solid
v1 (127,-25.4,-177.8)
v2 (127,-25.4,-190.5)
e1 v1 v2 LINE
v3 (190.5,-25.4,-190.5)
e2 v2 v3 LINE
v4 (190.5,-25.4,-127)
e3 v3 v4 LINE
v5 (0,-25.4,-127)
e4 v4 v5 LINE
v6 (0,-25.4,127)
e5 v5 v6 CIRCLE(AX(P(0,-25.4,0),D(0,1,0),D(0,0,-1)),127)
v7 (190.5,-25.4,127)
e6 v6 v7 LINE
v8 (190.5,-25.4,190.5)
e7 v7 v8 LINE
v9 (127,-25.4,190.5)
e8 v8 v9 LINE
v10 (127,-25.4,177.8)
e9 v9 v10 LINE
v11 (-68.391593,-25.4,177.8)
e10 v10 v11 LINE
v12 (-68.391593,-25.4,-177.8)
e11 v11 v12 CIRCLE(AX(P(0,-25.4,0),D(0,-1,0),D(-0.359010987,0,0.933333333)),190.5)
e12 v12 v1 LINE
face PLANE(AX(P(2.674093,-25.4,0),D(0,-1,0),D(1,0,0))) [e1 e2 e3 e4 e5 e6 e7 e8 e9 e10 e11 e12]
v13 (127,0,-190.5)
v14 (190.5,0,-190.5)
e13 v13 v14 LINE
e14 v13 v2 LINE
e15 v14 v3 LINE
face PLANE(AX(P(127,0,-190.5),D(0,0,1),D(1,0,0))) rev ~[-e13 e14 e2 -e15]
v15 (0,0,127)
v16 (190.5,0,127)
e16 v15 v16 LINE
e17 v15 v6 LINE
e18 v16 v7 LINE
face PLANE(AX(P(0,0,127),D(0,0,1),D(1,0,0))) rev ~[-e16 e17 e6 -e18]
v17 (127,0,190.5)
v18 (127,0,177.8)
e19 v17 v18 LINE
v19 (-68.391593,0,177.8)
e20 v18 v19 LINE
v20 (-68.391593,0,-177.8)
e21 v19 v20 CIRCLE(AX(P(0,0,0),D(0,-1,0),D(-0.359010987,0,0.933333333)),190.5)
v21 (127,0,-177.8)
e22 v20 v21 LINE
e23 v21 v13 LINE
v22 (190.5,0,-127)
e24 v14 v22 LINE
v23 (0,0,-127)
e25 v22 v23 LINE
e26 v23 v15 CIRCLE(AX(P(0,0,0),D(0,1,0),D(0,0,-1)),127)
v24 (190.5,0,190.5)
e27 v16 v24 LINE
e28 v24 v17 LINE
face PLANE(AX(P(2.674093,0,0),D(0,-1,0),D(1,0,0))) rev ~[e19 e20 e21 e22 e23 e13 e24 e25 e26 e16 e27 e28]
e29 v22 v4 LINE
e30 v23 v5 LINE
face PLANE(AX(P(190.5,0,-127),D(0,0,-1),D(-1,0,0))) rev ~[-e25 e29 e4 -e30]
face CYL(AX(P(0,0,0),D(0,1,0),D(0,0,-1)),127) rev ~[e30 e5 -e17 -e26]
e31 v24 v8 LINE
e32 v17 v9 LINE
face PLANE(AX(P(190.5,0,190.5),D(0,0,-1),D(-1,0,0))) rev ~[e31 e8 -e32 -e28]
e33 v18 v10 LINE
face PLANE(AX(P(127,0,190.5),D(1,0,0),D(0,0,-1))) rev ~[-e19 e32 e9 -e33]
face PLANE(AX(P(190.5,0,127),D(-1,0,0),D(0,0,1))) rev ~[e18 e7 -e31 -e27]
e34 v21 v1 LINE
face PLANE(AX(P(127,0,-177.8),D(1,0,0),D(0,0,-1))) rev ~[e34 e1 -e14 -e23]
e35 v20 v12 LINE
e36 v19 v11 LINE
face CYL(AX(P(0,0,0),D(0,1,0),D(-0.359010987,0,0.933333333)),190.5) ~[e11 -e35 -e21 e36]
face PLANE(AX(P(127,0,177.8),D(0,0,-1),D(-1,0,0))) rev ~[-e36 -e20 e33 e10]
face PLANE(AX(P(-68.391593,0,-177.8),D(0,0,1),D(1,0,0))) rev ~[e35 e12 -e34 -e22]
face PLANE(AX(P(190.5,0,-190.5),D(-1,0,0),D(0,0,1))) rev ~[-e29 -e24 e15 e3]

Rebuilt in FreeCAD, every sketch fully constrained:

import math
import FreeCAD as App
import Part
import Sketcher

V = App.Vector
Q = App.Units.Quantity

doc = App.newDocument("Part")
params = doc.addObject("Spreadsheet::Sheet", "Params")
for row, (alias, value) in enumerate([
    ("sketch1_radius", "5 in"),
    ("sketch1_radius2", "7.5 in"),
    ("sketch1_width", "2.5 in"),
    ("sketch1_width2", "7.5 in"),
    ("sketch1_height", "0.5 in"),
    ("pad1_length", "1 in"),
], start=1):
    params.set(f"A{row}", alias)
    params.set(f"B{row}", "=" + value)
    params.setAlias(f"B{row}", alias)

body = doc.addObject("PartDesign::Body", "Body")

# Sketch on XZ plane
sketch1 = body.newObject("Sketcher::SketchObject", "Sketch")
sketch1.AttachmentSupport = (doc.getObject("XZ_Plane"), [""])
sketch1.MapMode = "FlatFace"
sketch1.addGeometry([
    Part.LineSegment(V(-68, -178, 0), V(127, -178, 0)),  # 0
    Part.LineSegment(V(127, -178, 0), V(127, -190, 0)),  # 1
    Part.LineSegment(V(127, -190, 0), V(190, -190, 0)),  # 2
    Part.LineSegment(V(190, -190, 0), V(190, -127, 0)),  # 3
    Part.LineSegment(V(190, -127, 0), V(0, -127, 0)),  # 4
    Part.ArcOfCircle(Part.Circle(V(0, 0, 0), V(0, 0, 1), 127), math.radians(90), math.radians(270)),  # 5
    Part.LineSegment(V(0, 127, 0), V(190, 127, 0)),  # 6
    Part.LineSegment(V(190, 127, 0), V(190, 190, 0)),  # 7
    Part.LineSegment(V(190, 190, 0), V(127, 190, 0)),  # 8
    Part.LineSegment(V(127, 190, 0), V(127, 178, 0)),  # 9
    Part.LineSegment(V(127, 178, 0), V(-68, 178, 0)),  # 10
    Part.ArcOfCircle(Part.Circle(V(0, 0, 0), V(0, 0, 1), 190), math.radians(111), math.radians(249)),  # 11
], False)
sketch1.addConstraint([
    Sketcher.Constraint("Coincident", 0, 2, 1, 1),
    Sketcher.Constraint("Coincident", 1, 2, 2, 1),
    Sketcher.Constraint("Coincident", 2, 2, 3, 1),
    Sketcher.Constraint("Coincident", 3, 2, 4, 1),
    Sketcher.Constraint("Tangent", 4, 2, 5, 2),
    Sketcher.Constraint("Tangent", 5, 1, 6, 1),
    Sketcher.Constraint("Coincident", 6, 2, 7, 1),
    Sketcher.Constraint("Coincident", 7, 2, 8, 1),
    Sketcher.Constraint("Coincident", 8, 2, 9, 1),
    Sketcher.Constraint("Coincident", 9, 2, 10, 1),
    Sketcher.Constraint("Coincident", 10, 2, 11, 1),
    Sketcher.Constraint("Coincident", 11, 2, 0, 1),
    Sketcher.Constraint("Horizontal", 0),
    Sketcher.Constraint("Vertical", 1),
    Sketcher.Constraint("Horizontal", 2),
    Sketcher.Constraint("Vertical", 3),
    Sketcher.Constraint("Horizontal", 4),
    Sketcher.Constraint("Horizontal", 6),
    Sketcher.Constraint("Vertical", 7),
    Sketcher.Constraint("Horizontal", 8),
    Sketcher.Constraint("Vertical", 9),
    Sketcher.Constraint("Horizontal", 10),
    Sketcher.Constraint("Coincident", 5, 3, -1, 1),
    Sketcher.Constraint("Coincident", 11, 3, -1, 1),
    Sketcher.Constraint("Symmetric", 2, 2, 7, 2, -1),
    Sketcher.Constraint("Symmetric", 0, 2, 9, 2, -1),
    Sketcher.Constraint("Equal", 8, 3),
    Sketcher.Constraint("Radius", 5, Q("5 in")),
    Sketcher.Constraint("Radius", 11, Q("7.5 in")),
    Sketcher.Constraint("DistanceX", 2, 1, 2, 2, Q("2.5 in")),
    Sketcher.Constraint("DistanceX", 4, 2, 4, 1, Q("7.5 in")),
    Sketcher.Constraint("DistanceY", 1, 2, 1, 1, Q("0.5 in")),
])
sketch1.setExpression("Constraints[27]", "Params.sketch1_radius")
sketch1.setExpression("Constraints[28]", "Params.sketch1_radius2")
sketch1.setExpression("Constraints[29]", "Params.sketch1_width")
sketch1.setExpression("Constraints[30]", "Params.sketch1_width2")
sketch1.setExpression("Constraints[31]", "Params.sketch1_height")
pad1 = body.newObject("PartDesign::Pad", "Pad")
pad1.Profile = sketch1
pad1.setExpression("Length", "Params.pad1_length")

doc.recompute()
